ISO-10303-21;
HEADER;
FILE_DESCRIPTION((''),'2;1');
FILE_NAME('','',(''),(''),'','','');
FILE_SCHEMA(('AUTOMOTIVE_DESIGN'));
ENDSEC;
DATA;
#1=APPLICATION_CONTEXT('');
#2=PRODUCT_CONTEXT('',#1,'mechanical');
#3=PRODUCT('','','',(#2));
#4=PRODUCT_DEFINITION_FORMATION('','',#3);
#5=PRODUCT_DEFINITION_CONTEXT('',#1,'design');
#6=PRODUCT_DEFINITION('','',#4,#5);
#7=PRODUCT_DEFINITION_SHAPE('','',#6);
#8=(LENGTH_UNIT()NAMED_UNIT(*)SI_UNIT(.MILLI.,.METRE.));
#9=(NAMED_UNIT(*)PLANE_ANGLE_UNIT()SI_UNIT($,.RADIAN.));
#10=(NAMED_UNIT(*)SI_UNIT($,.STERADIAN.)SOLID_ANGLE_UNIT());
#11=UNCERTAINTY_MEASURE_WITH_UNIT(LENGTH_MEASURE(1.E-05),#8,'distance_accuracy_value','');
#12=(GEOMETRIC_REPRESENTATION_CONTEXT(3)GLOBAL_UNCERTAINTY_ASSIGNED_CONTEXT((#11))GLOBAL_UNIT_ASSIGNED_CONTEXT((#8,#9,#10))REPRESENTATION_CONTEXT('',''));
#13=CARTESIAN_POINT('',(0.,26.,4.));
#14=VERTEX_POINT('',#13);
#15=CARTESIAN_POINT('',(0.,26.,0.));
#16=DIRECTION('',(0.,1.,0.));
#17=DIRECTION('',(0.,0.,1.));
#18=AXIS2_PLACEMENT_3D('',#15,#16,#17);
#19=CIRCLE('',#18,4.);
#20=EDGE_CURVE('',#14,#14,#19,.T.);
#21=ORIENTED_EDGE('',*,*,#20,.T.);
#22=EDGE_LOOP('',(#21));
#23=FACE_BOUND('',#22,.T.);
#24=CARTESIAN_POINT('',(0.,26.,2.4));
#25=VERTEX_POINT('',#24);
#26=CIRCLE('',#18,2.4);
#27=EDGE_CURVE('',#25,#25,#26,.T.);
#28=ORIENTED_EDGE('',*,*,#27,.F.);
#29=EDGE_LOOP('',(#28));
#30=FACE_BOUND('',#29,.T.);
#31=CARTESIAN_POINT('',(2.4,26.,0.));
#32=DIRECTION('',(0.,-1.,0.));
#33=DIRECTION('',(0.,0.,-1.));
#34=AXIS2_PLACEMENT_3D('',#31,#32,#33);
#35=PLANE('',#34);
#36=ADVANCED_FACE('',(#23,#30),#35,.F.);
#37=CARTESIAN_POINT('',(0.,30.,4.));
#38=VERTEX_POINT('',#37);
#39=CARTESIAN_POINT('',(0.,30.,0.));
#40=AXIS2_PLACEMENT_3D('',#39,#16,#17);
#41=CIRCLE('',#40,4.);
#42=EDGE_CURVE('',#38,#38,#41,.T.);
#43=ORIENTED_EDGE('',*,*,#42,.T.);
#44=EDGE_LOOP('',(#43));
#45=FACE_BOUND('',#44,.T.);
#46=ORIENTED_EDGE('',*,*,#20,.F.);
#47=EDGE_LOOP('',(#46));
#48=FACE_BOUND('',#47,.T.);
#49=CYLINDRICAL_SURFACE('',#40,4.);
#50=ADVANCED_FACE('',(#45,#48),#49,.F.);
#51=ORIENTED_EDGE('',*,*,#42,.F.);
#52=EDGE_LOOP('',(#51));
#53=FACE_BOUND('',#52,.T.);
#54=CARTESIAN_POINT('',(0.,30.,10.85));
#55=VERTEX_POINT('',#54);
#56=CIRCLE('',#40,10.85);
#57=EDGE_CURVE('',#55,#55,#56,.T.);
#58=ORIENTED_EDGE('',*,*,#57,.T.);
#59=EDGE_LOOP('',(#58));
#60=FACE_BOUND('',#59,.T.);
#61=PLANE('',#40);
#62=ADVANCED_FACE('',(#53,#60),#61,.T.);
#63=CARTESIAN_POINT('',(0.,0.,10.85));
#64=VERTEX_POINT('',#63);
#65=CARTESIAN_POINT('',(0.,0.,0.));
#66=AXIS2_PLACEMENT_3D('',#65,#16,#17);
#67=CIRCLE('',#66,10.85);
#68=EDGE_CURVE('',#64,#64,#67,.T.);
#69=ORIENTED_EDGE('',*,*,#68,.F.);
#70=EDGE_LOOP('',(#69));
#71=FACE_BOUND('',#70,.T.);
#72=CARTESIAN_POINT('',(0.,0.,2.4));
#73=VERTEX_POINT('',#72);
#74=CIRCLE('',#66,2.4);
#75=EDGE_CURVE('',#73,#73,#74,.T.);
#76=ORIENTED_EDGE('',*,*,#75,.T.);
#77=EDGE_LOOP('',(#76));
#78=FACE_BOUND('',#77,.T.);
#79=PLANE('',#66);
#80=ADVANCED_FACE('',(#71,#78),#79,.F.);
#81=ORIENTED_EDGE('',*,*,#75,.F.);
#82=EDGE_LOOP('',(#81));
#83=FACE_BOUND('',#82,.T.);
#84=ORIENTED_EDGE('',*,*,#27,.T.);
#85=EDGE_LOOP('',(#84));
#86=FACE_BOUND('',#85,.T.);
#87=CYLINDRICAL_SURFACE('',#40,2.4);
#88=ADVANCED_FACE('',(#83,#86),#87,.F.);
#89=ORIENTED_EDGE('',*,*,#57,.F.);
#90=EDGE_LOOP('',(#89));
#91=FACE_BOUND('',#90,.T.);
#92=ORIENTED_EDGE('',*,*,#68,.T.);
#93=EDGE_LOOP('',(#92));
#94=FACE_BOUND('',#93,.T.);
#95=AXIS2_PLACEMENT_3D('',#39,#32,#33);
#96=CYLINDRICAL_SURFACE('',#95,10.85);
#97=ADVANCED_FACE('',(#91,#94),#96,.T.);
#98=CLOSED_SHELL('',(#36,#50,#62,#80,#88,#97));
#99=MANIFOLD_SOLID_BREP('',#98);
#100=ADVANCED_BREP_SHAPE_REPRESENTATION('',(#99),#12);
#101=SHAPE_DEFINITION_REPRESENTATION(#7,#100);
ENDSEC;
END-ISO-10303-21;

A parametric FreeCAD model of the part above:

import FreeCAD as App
import Part
import Sketcher

V = App.Vector

doc = App.newDocument("Part")
body = doc.addObject("PartDesign::Body", "Body")

# Sketch on XZ plane
sketch1 = body.newObject("Sketcher::SketchObject", "Sketch")
sketch1.AttachmentSupport = (doc.getObject("XZ_Plane"), [""])
sketch1.MapMode = "FlatFace"
sketch1.addGeometry(Part.Circle(V(0, 0, 0), V(0, 0, 1), 10.85), False)
sketch1.addConstraint([
    Sketcher.Constraint("Coincident", 0, 3, -1, 1),
    Sketcher.Constraint("Diameter", 0, 21.7),
])
pad1 = body.newObject("PartDesign::Pad", "Pad")
pad1.Profile = sketch1
pad1.Length = 30
pad1.Reversed = True

# Sketch on XZ plane
sketch2 = body.newObject("Sketcher::SketchObject", "Sketch001")
sketch2.AttachmentSupport = (doc.getObject("XZ_Plane"), [""])
sketch2.MapMode = "FlatFace"
sketch2.AttachmentOffset = App.Placement(V(0, 0, -30), App.Rotation())
sketch2.addGeometry(Part.Circle(V(0, 0, 0), V(0, 0, 1), 2.4), False)
sketch2.addConstraint([
    Sketcher.Constraint("Coincident", 0, 3, -1, 1),
    Sketcher.Constraint("Diameter", 0, 4.8),
])
doc.recompute()
hole = body.newObject("PartDesign::Hole", "Hole")
hole.Profile = sketch2
hole.ThreadType = "None"
hole.Diameter = 4.8
hole.DepthType = "ThroughAll"
hole.HoleCutType = "Counterbore"
hole.HoleCutDiameter = 8
hole.HoleCutDepth = 4
hole.Reversed = True

doc.recompute()
